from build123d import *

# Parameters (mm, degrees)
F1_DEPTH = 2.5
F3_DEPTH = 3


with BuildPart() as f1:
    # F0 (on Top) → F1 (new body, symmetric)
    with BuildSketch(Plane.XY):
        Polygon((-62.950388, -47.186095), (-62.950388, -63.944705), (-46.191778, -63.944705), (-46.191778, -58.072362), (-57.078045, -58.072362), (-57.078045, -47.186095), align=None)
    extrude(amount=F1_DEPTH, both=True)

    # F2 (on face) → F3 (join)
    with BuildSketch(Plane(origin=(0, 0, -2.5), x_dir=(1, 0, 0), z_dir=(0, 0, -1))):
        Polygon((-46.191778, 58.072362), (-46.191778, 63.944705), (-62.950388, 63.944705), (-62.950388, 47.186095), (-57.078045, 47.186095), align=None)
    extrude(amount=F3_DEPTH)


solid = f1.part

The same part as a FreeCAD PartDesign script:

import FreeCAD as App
import Part
import Sketcher

V = App.Vector


def add_polygon(sketch, points):
    """Adds a closed chain of lines whose ends are joined by coincident constraints."""
    first, n = sketch.GeometryCount, len(points)
    for a, b in zip(points, points[1:] + points[:1]):
        sketch.addGeometry(Part.LineSegment(App.Vector(*a, 0), App.Vector(*b, 0)), False)
    for i in range(n):
        sketch.addConstraint(Sketcher.Constraint("Coincident", first + i, 2, first + (i + 1) % n, 1))

doc = App.newDocument("Part")
body = doc.addObject("PartDesign::Body", "Body")

sketch1 = doc.addObject("Sketcher::SketchObject", "Sketch")
body.addObject(sketch1)
sketch1.AttachmentSupport = (doc.XY_Plane, [""])
sketch1.MapMode = "FlatFace"
add_polygon(sketch1, [(-62.950388, -47.186095), (-62.950388, -63.944705), (-46.191778, -63.944705), (-46.191778, -58.072362), (-57.078045, -58.072362), (-57.078045, -47.186095)])
sketch1.addConstraint([
    Sketcher.Constraint("Vertical", 0),
    Sketcher.Constraint("Horizontal", 1),
    Sketcher.Constraint("Vertical", 2),
    Sketcher.Constraint("Horizontal", 3),
    Sketcher.Constraint("Vertical", 4),
    Sketcher.Constraint("Horizontal", 5),
    Sketcher.Constraint("Equal", 1, 0),
    Sketcher.Constraint("Equal", 5, 2),
    Sketcher.Constraint("DistanceX", 1, 1, 1, 2, 16.75861),
    Sketcher.Constraint("DistanceX", 3, 2, 3, 1, 10.886267),
    Sketcher.Constraint("DistanceY", 2, 2, -1, 1, 58.072362),
    Sketcher.Constraint("DistanceX", 0, 2, -1, 1, 62.950388),
])
pad1 = doc.addObject("PartDesign::Pad", "Pad")
body.addObject(pad1)
pad1.Profile = sketch1
pad1.Length = 5
pad1.Midplane = True

sketch2 = doc.addObject("Sketcher::SketchObject", "Sketch001")
body.addObject(sketch2)
sketch2.AttachmentSupport = (doc.XY_Plane, [""])
sketch2.MapMode = "FlatFace"
sketch2.AttachmentOffset = App.Placement(V(0, 0, -2.5), App.Rotation())
add_polygon(sketch2, [(-46.191778, -58.072362), (-46.191778, -63.944705), (-62.950388, -63.944705), (-62.950388, -47.186095), (-57.078045, -47.186095)])
sketch2.addConstraint([
    Sketcher.Constraint("Vertical", 0),
    Sketcher.Constraint("Horizontal", 1),
    Sketcher.Constraint("Vertical", 2),
    Sketcher.Constraint("Horizontal", 3),
    Sketcher.Constraint("Equal", 3, 0),
    Sketcher.Constraint("Equal", 1, 2),
    Sketcher.Constraint("DistanceX", 1, 2, 1, 1, 16.75861),
    Sketcher.Constraint("DistanceX", 3, 1, 3, 2, 5.872343),
    Sketcher.Constraint("DistanceY", 4, 2, -1, 1, 58.072362),
    Sketcher.Constraint("DistanceX", 0, 2, -1, 1, 46.191778),
])
pad2 = doc.addObject("PartDesign::Pad", "Pad001")
body.addObject(pad2)
pad2.Profile = sketch2
pad2.Length = 3
pad2.Reversed = True

doc.recompute()
